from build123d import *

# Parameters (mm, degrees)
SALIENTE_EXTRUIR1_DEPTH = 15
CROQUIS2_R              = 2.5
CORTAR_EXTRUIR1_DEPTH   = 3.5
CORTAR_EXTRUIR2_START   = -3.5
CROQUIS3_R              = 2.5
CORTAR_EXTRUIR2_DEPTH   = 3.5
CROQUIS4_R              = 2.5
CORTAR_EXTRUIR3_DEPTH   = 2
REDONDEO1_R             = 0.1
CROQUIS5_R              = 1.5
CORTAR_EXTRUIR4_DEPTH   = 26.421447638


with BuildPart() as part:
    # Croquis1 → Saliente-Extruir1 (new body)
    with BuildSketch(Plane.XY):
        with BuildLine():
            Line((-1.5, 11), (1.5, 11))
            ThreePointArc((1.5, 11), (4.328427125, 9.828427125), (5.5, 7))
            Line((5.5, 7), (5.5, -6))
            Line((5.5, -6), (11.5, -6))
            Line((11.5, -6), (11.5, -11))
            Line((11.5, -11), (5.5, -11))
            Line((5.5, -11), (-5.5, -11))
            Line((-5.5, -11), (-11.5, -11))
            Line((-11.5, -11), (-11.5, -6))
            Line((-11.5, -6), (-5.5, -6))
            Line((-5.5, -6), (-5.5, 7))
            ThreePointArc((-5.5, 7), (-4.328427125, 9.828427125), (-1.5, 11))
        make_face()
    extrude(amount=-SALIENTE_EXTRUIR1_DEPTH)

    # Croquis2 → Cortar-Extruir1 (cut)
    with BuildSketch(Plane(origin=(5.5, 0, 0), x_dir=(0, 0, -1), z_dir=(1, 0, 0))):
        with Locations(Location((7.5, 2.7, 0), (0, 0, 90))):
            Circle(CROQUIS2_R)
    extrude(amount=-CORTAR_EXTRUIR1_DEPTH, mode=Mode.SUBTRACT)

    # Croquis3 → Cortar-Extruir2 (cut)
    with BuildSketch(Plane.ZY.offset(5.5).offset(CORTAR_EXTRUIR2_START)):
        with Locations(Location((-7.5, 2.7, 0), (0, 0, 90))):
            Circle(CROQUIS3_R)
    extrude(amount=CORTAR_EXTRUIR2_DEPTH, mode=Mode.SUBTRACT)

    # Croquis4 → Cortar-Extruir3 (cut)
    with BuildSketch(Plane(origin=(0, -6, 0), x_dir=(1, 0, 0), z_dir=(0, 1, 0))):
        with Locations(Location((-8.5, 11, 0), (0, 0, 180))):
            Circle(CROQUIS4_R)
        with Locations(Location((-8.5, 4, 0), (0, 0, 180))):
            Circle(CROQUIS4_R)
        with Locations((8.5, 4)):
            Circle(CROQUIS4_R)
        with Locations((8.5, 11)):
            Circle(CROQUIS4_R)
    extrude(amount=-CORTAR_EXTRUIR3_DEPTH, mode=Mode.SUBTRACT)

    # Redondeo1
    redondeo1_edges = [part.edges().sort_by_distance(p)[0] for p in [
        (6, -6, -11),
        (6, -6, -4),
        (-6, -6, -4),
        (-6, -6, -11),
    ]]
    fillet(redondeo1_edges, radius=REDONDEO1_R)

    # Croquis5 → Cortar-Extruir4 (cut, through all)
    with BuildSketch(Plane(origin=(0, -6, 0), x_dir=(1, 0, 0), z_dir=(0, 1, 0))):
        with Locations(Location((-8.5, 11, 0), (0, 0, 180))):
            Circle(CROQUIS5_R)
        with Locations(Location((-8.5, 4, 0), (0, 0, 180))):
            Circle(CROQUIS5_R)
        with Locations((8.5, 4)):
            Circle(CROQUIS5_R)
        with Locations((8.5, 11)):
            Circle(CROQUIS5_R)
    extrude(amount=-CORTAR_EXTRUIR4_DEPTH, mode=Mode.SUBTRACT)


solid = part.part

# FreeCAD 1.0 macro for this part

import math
import FreeCAD as App
import Part
import Sketcher

V = App.Vector


def edges_at(feature, points):
    """Names of the edges that pass closest to the given points."""
    edges = feature.Shape.Edges
    near = lambda p: min(range(len(edges)), key=lambda i: edges[i].distToShape(Part.Vertex(*p))[0])
    return sorted({f"Edge{near(p) + 1}" for p in points})

doc = App.newDocument("Part")
params = doc.addObject("Spreadsheet::Sheet", "Params")
for row, (alias, value) in enumerate([
    ("sketch1_radius", "4 mm"),
    ("sketch1_width", "3 mm"),
    ("sketch1_width2", "6 mm"),
    ("sketch1_height", "13 mm"),
    ("sketch1_height2", "5 mm"),
    ("pad1_length", "15 mm"),
    ("sketch2_diameter", "5 mm"),
    ("pocket1_length", "3.5 mm"),
    ("sketch3_diameter", "5 mm"),
    ("pocket2_length", "3.5 mm"),
    ("sketch4_diameter", "5 mm"),
    ("pocket3_length", "2 mm"),
    ("fillet_radius", "0.1 mm"),
    ("sketch5_diameter", "3 mm"),
], start=1):
    params.set(f"A{row}", alias)
    params.set(f"B{row}", "=" + value)
    params.setAlias(f"B{row}", alias)

body = doc.addObject("PartDesign::Body", "Body")

# Sketch on XY plane
sketch1 = doc.addObject("Sketcher::SketchObject", "Sketch")
body.addObject(sketch1)
sketch1.AttachmentSupport = (doc.XY_Plane, [""])
sketch1.MapMode = "FlatFace"
sketch1.addGeometry(Part.LineSegment(V(1.5, 11, 0), V(-1.5, 11, 0)), False)
sketch1.addGeometry(Part.ArcOfCircle(Part.Circle(V(-1.5, 7, 0), V(0, 0, 1), 4), math.radians(90), math.radians(180)), False)
sketch1.addGeometry(Part.LineSegment(V(-5.5, 7, 0), V(-5.5, -6, 0)), False)
sketch1.addGeometry(Part.LineSegment(V(-5.5, -6, 0), V(-11.5, -6, 0)), False)
sketch1.addGeometry(Part.LineSegment(V(-11.5, -6, 0), V(-11.5, -11, 0)), False)
sketch1.addGeometry(Part.LineSegment(V(-11.5, -11, 0), V(11.5, -11, 0)), False)
sketch1.addGeometry(Part.LineSegment(V(11.5, -11, 0), V(11.5, -6, 0)), False)
sketch1.addGeometry(Part.LineSegment(V(11.5, -6, 0), V(5.5, -6, 0)), False)
sketch1.addGeometry(Part.LineSegment(V(5.5, -6, 0), V(5.5, 7, 0)), False)
sketch1.addGeometry(Part.ArcOfCircle(Part.Circle(V(1.5, 7, 0), V(0, 0, 1), 4), math.radians(0), math.radians(90)), False)
sketch1.addConstraint(Sketcher.Constraint("Tangent", 0, 2, 1, 1))
sketch1.addConstraint(Sketcher.Constraint("Tangent", 1, 2, 2, 1))
sketch1.addConstraint(Sketcher.Constraint("Coincident", 2, 2, 3, 1))
sketch1.addConstraint(Sketcher.Constraint("Coincident", 3, 2, 4, 1))
sketch1.addConstraint(Sketcher.Constraint("Coincident", 4, 2, 5, 1))
sketch1.addConstraint(Sketcher.Constraint("Coincident", 5, 2, 6, 1))
sketch1.addConstraint(Sketcher.Constraint("Coincident", 6, 2, 7, 1))
sketch1.addConstraint(Sketcher.Constraint("Coincident", 7, 2, 8, 1))
sketch1.addConstraint(Sketcher.Constraint("Tangent", 8, 2, 9, 1))
sketch1.addConstraint(Sketcher.Constraint("Tangent", 9, 2, 0, 1))
sketch1.addConstraint(Sketcher.Constraint("Horizontal", 0))
sketch1.addConstraint(Sketcher.Constraint("Vertical", 2))
sketch1.addConstraint(Sketcher.Constraint("Horizontal", 3))
sketch1.addConstraint(Sketcher.Constraint("Vertical", 4))
sketch1.addConstraint(Sketcher.Constraint("Horizontal", 5))
sketch1.addConstraint(Sketcher.Constraint("Vertical", 6))
sketch1.addConstraint(Sketcher.Constraint("Horizontal", 7))
sketch1.addConstraint(Sketcher.Constraint("Vertical", 8))
sketch1.addConstraint(Sketcher.Constraint("Equal", 1, 9))
sketch1.addConstraint(Sketcher.Constraint("Symmetric", 3, 2, 6, 2, -2))
sketch1.addConstraint(Sketcher.Constraint("Equal", 3, 7))
sketch1.addConstraint(Sketcher.Constraint("Radius", 1, 4.0))
sketch1.addConstraint(Sketcher.Constraint("DistanceX", 0, 2, 0, 1, 3.0))
sketch1.addConstraint(Sketcher.Constraint("DistanceX", 3, 2, 3, 1, 6.0))
sketch1.addConstraint(Sketcher.Constraint("DistanceY", 2, 2, 2, 1, 13.0))
sketch1.addConstraint(Sketcher.Constraint("DistanceY", 4, 2, 4, 1, 5.0))
sketch1.addConstraint(Sketcher.Constraint("DistanceY", -1, 1, 1, 3, 7.0))
sketch1.setExpression("Constraints[21]", "Params.sketch1_radius")
sketch1.setExpression("Constraints[22]", "Params.sketch1_width")
sketch1.setExpression("Constraints[23]", "Params.sketch1_width2")
sketch1.setExpression("Constraints[24]", "Params.sketch1_height")
sketch1.setExpression("Constraints[25]", "Params.sketch1_height2")
pad1 = doc.addObject("PartDesign::Pad", "Pad")
body.addObject(pad1)
pad1.Profile = sketch1
pad1.setExpression("Length", "Params.pad1_length")
pad1.Reversed = True

# Sketch on YZ plane
sketch2 = doc.addObject("Sketcher::SketchObject", "Sketch001")
body.addObject(sketch2)
sketch2.AttachmentSupport = (doc.YZ_Plane, [""])
sketch2.MapMode = "FlatFace"
sketch2.AttachmentOffset = App.Placement(V(0, 0, 5.5), App.Rotation())
sketch2.addGeometry(Part.Circle(V(2.7, -7.5, 0), V(0, 0, 1), 2.5), False)
sketch2.addConstraint(Sketcher.Constraint("Diameter", 0, 5.0))
sketch2.addConstraint(Sketcher.Constraint("DistanceX", -1, 1, 0, 3, 2.7))
sketch2.addConstraint(Sketcher.Constraint("DistanceY", 0, 3, -1, 1, 7.5))
sketch2.setExpression("Constraints[0]", "Params.sketch2_diameter")
pocket1 = doc.addObject("PartDesign::Pocket", "Pocket")
body.addObject(pocket1)
pocket1.Profile = sketch2
pocket1.setExpression("Length", "Params.pocket1_length")

# Sketch on YZ plane
sketch3 = doc.addObject("Sketcher::SketchObject", "Sketch002")
body.addObject(sketch3)
sketch3.AttachmentSupport = (doc.YZ_Plane, [""])
sketch3.MapMode = "FlatFace"
sketch3.AttachmentOffset = App.Placement(V(0, 0, -2), App.Rotation())
sketch3.addGeometry(Part.Circle(V(2.7, -7.5, 0), V(0, 0, 1), 2.5), False)
sketch3.addConstraint(Sketcher.Constraint("Diameter", 0, 5.0))
sketch3.addConstraint(Sketcher.Constraint("DistanceX", -1, 1, 0, 3, 2.7))
sketch3.addConstraint(Sketcher.Constraint("DistanceY", 0, 3, -1, 1, 7.5))
sketch3.setExpression("Constraints[0]", "Params.sketch3_diameter")
pocket2 = doc.addObject("PartDesign::Pocket", "Pocket001")
body.addObject(pocket2)
pocket2.Profile = sketch3
pocket2.setExpression("Length", "Params.pocket2_length")

# Sketch on XZ plane
sketch4 = doc.addObject("Sketcher::SketchObject", "Sketch003")
body.addObject(sketch4)
sketch4.AttachmentSupport = (doc.XZ_Plane, [""])
sketch4.MapMode = "FlatFace"
sketch4.AttachmentOffset = App.Placement(V(0, 0, 6), App.Rotation())
sketch4.addGeometry(Part.Circle(V(-8.5, -11, 0), V(0, 0, 1), 2.5), False)
sketch4.addGeometry(Part.Circle(V(-8.5, -4, 0), V(0, 0, 1), 2.5), False)
sketch4.addGeometry(Part.Circle(V(8.5, -4, 0), V(0, 0, 1), 2.5), False)
sketch4.addGeometry(Part.Circle(V(8.5, -11, 0), V(0, 0, 1), 2.5), False)
sketch4.addConstraint(Sketcher.Constraint("Equal", 0, 1))
sketch4.addConstraint(Sketcher.Constraint("Equal", 1, 2))
sketch4.addConstraint(Sketcher.Constraint("Equal", 2, 3))
sketch4.addConstraint(Sketcher.Constraint("Symmetric", 1, 3, 2, 3, -2))
sketch4.addConstraint(Sketcher.Constraint("Symmetric", 0, 3, 3, 3, -2))
sketch4.addConstraint(Sketcher.Constraint("Vertical", 0, 3, 1, 3))
sketch4.addConstraint(Sketcher.Constraint("Diameter", 0, 5.0))
sketch4.addConstraint(Sketcher.Constraint("DistanceY", 0, 3, -1, 1, 11.0))
sketch4.addConstraint(Sketcher.Constraint("DistanceY", 1, 3, -1, 1, 4.0))
sketch4.addConstraint(Sketcher.Constraint("DistanceX", 1, 3, 2, 3, 17.0))
sketch4.setExpression("Constraints[6]", "Params.sketch4_diameter")
pocket3 = doc.addObject("PartDesign::Pocket", "Pocket002")
body.addObject(pocket3)
pocket3.Profile = sketch4
pocket3.setExpression("Length", "Params.pocket3_length")
pocket3.Reversed = True
doc.recompute()

fillet = doc.addObject("PartDesign::Fillet", "Fillet")
body.addObject(fillet)
fillet.Base = (pocket3, edges_at(pocket3, [
    (6, -6, -11),
    (6, -6, -4),
    (-6, -6, -4),
    (-6, -6, -11),
]))
fillet.setExpression("Radius", "Params.fillet_radius")

# Sketch on XZ plane
sketch5 = doc.addObject("Sketcher::SketchObject", "Sketch004")
body.addObject(sketch5)
sketch5.AttachmentSupport = (doc.XZ_Plane, [""])
sketch5.MapMode = "FlatFace"
sketch5.AttachmentOffset = App.Placement(V(0, 0, 6), App.Rotation())
sketch5.addGeometry(Part.Circle(V(-8.5, -11, 0), V(0, 0, 1), 1.5), False)
sketch5.addGeometry(Part.Circle(V(-8.5, -4, 0), V(0, 0, 1), 1.5), False)
sketch5.addGeometry(Part.Circle(V(8.5, -4, 0), V(0, 0, 1), 1.5), False)
sketch5.addGeometry(Part.Circle(V(8.5, -11, 0), V(0, 0, 1), 1.5), False)
sketch5.addConstraint(Sketcher.Constraint("Equal", 0, 1))
sketch5.addConstraint(Sketcher.Constraint("Equal", 1, 2))
sketch5.addConstraint(Sketcher.Constraint("Equal", 2, 3))
sketch5.addConstraint(Sketcher.Constraint("Symmetric", 1, 3, 2, 3, -2))
sketch5.addConstraint(Sketcher.Constraint("Symmetric", 0, 3, 3, 3, -2))
sketch5.addConstraint(Sketcher.Constraint("Vertical", 0, 3, 1, 3))
sketch5.addConstraint(Sketcher.Constraint("Diameter", 0, 3.0))
sketch5.addConstraint(Sketcher.Constraint("DistanceY", 0, 3, -1, 1, 11.0))
sketch5.addConstraint(Sketcher.Constraint("DistanceY", 1, 3, -1, 1, 4.0))
sketch5.addConstraint(Sketcher.Constraint("DistanceX", 1, 3, 2, 3, 17.0))
sketch5.setExpression("Constraints[6]", "Params.sketch5_diameter")
pocket4 = doc.addObject("PartDesign::Pocket", "Pocket003")
body.addObject(pocket4)
pocket4.Profile = sketch5
pocket4.Type = "ThroughAll"
pocket4.Reversed = True

doc.recompute()
